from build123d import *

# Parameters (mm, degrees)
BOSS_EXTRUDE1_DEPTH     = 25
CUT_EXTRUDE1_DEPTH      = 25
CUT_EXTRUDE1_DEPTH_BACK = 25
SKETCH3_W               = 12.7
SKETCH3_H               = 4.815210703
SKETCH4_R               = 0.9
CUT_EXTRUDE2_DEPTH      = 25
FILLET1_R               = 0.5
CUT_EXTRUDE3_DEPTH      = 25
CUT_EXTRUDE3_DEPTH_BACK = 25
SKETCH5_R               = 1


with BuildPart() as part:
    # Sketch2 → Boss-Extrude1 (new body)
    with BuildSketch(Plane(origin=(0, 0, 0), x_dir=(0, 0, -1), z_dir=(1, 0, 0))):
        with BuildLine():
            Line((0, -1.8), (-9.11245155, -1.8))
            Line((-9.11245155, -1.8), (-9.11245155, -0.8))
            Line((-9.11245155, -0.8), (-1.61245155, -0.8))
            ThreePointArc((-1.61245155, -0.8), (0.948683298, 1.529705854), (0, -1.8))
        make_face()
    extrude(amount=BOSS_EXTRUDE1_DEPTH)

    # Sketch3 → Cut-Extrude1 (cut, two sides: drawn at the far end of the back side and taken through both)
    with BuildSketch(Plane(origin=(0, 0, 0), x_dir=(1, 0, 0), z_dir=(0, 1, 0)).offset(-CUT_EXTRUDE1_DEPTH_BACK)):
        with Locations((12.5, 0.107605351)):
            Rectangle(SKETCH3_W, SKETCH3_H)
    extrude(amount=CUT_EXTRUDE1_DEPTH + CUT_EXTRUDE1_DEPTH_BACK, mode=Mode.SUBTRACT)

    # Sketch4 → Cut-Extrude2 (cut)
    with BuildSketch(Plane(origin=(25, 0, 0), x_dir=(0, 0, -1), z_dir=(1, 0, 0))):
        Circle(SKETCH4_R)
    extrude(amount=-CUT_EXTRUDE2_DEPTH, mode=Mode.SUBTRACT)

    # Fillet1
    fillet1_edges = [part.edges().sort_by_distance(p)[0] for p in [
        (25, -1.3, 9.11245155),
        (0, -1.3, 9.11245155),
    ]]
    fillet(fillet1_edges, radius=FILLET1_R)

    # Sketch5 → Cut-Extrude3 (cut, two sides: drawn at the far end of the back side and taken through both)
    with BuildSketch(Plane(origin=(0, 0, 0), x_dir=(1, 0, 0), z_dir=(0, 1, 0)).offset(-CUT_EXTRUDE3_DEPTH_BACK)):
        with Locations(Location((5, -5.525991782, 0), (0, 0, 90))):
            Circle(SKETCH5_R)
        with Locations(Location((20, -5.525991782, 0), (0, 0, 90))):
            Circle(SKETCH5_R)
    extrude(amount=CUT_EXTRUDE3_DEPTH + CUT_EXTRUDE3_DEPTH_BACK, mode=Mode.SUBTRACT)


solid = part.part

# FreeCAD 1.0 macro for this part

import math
import FreeCAD as App
import Part
import Sketcher


def edges_at(feature, points):
    """Names of the edges that pass closest to the given points."""
    edges = feature.Shape.Edges
    near = lambda p: min(range(len(edges)), key=lambda i: edges[i].distToShape(Part.Vertex(*p))[0])
    return sorted({f"Edge{near(p) + 1}" for p in points})


def add_polygon(sketch, points):
    """Adds a closed chain of lines whose ends are joined by coincident constraints."""
    first, n = sketch.GeometryCount, len(points)
    for a, b in zip(points, points[1:] + points[:1]):
        sketch.addGeometry(Part.LineSegment(App.Vector(*a, 0), App.Vector(*b, 0)), False)
    for i in range(n):
        sketch.addConstraint(Sketcher.Constraint("Coincident", first + i, 2, first + (i + 1) % n, 1))

doc = App.newDocument("Part")
body = doc.addObject("PartDesign::Body", "Body")

# Sketch on YZ plane
sketch1 = doc.addObject("Sketcher::SketchObject", "Sketch")
body.addObject(sketch1)
sketch1.AttachmentSupport = (doc.YZ_Plane, [""])
sketch1.MapMode = "FlatFace"
sketch1.addGeometry(Part.LineSegment(App.Vector(-1.8, 9.1, 0), App.Vector(-1.8, 0, 0)), False)
sketch1.addGeometry(Part.ArcOfCircle(Part.Circle(App.Vector(0, 0, 0), App.Vector(0, 0, 1), 1.8), math.radians(180), math.radians(476)), False)
sketch1.addGeometry(Part.LineSegment(App.Vector(-0.8, 1.6, 0), App.Vector(-0.8, 9.1, 0)), False)
sketch1.addGeometry(Part.LineSegment(App.Vector(-0.8, 9.1, 0), App.Vector(-1.8, 9.1, 0)), False)
sketch1.addConstraint(Sketcher.Constraint("Tangent", 0, 2, 1, 1))
sketch1.addConstraint(Sketcher.Constraint("Coincident", 1, 2, 2, 1))
sketch1.addConstraint(Sketcher.Constraint("Coincident", 2, 2, 3, 1))
sketch1.addConstraint(Sketcher.Constraint("Coincident", 3, 2, 0, 1))
sketch1.addConstraint(Sketcher.Constraint("Vertical", 0))
sketch1.addConstraint(Sketcher.Constraint("Vertical", 2))
sketch1.addConstraint(Sketcher.Constraint("Horizontal", 3))
sketch1.addConstraint(Sketcher.Constraint("Coincident", 1, 3, -1, 1))
sketch1.addConstraint(Sketcher.Constraint("Radius", 1, 1.8))
sketch1.addConstraint(Sketcher.Constraint("DistanceX", 3, 2, 3, 1, 1.0))
sketch1.addConstraint(Sketcher.Constraint("DistanceY", 2, 1, 2, 2, 7.5))
pad1 = doc.addObject("PartDesign::Pad", "Pad")
body.addObject(pad1)
pad1.Profile = sketch1
pad1.Length = 25

# Sketch on XZ plane
sketch2 = doc.addObject("Sketcher::SketchObject", "Sketch001")
body.addObject(sketch2)
sketch2.AttachmentSupport = (doc.XZ_Plane, [""])
sketch2.MapMode = "FlatFace"
add_polygon(sketch2, [(6.2, -2.5), (6.2, 2.3), (18.9, 2.3), (18.9, -2.5)])  # lines 0-3
sketch2.addConstraint(Sketcher.Constraint("Vertical", 0))
sketch2.addConstraint(Sketcher.Constraint("Horizontal", 1))
sketch2.addConstraint(Sketcher.Constraint("Vertical", 2))
sketch2.addConstraint(Sketcher.Constraint("Horizontal", 3))
sketch2.addConstraint(Sketcher.Constraint("DistanceX", 1, 1, 1, 2, 12.7))
sketch2.addConstraint(Sketcher.Constraint("DistanceY", -1, 1, 0, 2, 2.3))
sketch2.addConstraint(Sketcher.Constraint("DistanceX", -1, 1, 0, 2, 6.15))
sketch2.addConstraint(Sketcher.Constraint("DistanceY", 0, 1, 0, 2, 4.815211))
pocket1 = doc.addObject("PartDesign::Pocket", "Pocket")
body.addObject(pocket1)
pocket1.Profile = sketch2
pocket1.Type = "ThroughAll"
pocket1.Midplane = True

# Sketch on YZ plane
sketch3 = doc.addObject("Sketcher::SketchObject", "Sketch002")
body.addObject(sketch3)
sketch3.AttachmentSupport = (doc.YZ_Plane, [""])
sketch3.MapMode = "FlatFace"
sketch3.AttachmentOffset = App.Placement(App.Vector(0, 0, 25), App.Rotation())
sketch3.addGeometry(Part.Circle(App.Vector(0, 0, 0), App.Vector(0, 0, 1), 0.9), False)
sketch3.addConstraint(Sketcher.Constraint("Coincident", 0, 3, -1, 1))
sketch3.addConstraint(Sketcher.Constraint("Diameter", 0, 1.8))
pocket2 = doc.addObject("PartDesign::Pocket", "Pocket001")
body.addObject(pocket2)
pocket2.Profile = sketch3
pocket2.Length = 25
doc.recompute()

fillet = doc.addObject("PartDesign::Fillet", "Fillet")
body.addObject(fillet)
fillet.Base = (pocket2, edges_at(pocket2, [(25, -1.3, 9.112), (0, -1.3, 9.112)]))
fillet.Radius = 0.5

# Sketch on XZ plane
sketch4 = doc.addObject("Sketcher::SketchObject", "Sketch003")
body.addObject(sketch4)
sketch4.AttachmentSupport = (doc.XZ_Plane, [""])
sketch4.MapMode = "FlatFace"
sketch4.addGeometry(Part.Circle(App.Vector(5, 5.5, 0), App.Vector(0, 0, 1), 1), False)
sketch4.addGeometry(Part.Circle(App.Vector(20, 5.5, 0), App.Vector(0, 0, 1), 1), False)
sketch4.addConstraint(Sketcher.Constraint("Equal", 0, 1))
sketch4.addConstraint(Sketcher.Constraint("Horizontal", 0, 3, 1, 3))
sketch4.addConstraint(Sketcher.Constraint("Diameter", 0, 2.0))
sketch4.addConstraint(Sketcher.Constraint("DistanceX", -1, 1, 0, 3, 5.0))
sketch4.addConstraint(Sketcher.Constraint("DistanceX", -1, 1, 1, 3, 20.0))
sketch4.addConstraint(Sketcher.Constraint("DistanceY", -1, 1, 0, 3, 5.525992))
pocket3 = doc.addObject("PartDesign::Pocket", "Pocket002")
body.addObject(pocket3)
pocket3.Profile = sketch4
pocket3.Type = "ThroughAll"
pocket3.Midplane = True

doc.recompute()
